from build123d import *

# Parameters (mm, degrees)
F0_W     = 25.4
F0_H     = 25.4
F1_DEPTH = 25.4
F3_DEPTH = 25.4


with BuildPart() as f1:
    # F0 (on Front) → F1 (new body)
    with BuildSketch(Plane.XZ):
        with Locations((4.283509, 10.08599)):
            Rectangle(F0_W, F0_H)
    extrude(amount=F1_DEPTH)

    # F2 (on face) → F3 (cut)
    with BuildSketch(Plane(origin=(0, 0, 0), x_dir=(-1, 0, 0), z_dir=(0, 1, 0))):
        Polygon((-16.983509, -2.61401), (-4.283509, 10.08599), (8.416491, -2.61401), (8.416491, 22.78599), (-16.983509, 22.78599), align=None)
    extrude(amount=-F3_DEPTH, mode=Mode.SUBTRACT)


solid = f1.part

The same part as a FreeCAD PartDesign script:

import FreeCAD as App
import Part
import Sketcher
from FreeCAD import Vector
Q = App.Units.Quantity

doc = App.newDocument("Part")
params = doc.addObject("Spreadsheet::Sheet", "Params")
for row, (alias, value) in enumerate([
    ("sketch1_width", "1 in"),
    ("pad1_length", "1 in"),
    ("sketch2_width", "1 in"),
    ("pocket1_length", "1 in"),
], start=1):
    params.set(f"A{row}", alias)
    params.set(f"B{row}", "=" + value)
    params.setAlias(f"B{row}", alias)

body = doc.addObject("PartDesign::Body", "Body")

# Sketch on XZ plane
sketch1 = body.newObject("Sketcher::SketchObject", "Sketch")
sketch1.AttachmentSupport = (doc.getObject("XZ_Plane"), [""])
sketch1.MapMode = "FlatFace"
sketch1.addGeometry([
    Part.LineSegment(Vector(-8, 23, 0), Vector(-8, -3, 0)),
    Part.LineSegment(Vector(-8, -3, 0), Vector(17, -3, 0)),
    Part.LineSegment(Vector(17, -3, 0), Vector(17, 23, 0)),
    Part.LineSegment(Vector(17, 23, 0), Vector(-8, 23, 0)),
], False)
sketch1.addConstraint([
    Sketcher.Constraint("Coincident", 0, 2, 1, 1),
    Sketcher.Constraint("Coincident", 1, 2, 2, 1),
    Sketcher.Constraint("Coincident", 2, 2, 3, 1),
    Sketcher.Constraint("Coincident", 3, 2, 0, 1),
    Sketcher.Constraint("Vertical", 0),
    Sketcher.Constraint("Horizontal", 1),
    Sketcher.Constraint("Vertical", 2),
    Sketcher.Constraint("Horizontal", 3),
    Sketcher.Constraint("Equal", 3, 0),
    Sketcher.Constraint("DistanceX", 1, 1, 1, 2, Q("1 in")),
    Sketcher.Constraint("DistanceX", 0, 2, -1, 1, Q("8.416491 mm")),
    Sketcher.Constraint("DistanceY", 0, 2, -1, 1, Q("2.61401 mm")),
])
sketch1.setExpression("Constraints[9]", "Params.sketch1_width")
pad1 = body.newObject("PartDesign::Pad", "Pad")
pad1.Profile = sketch1
pad1.setExpression("Length", "Params.pad1_length")

# Sketch on XZ plane
sketch2 = body.newObject("Sketcher::SketchObject", "Sketch001")
sketch2.AttachmentSupport = (doc.getObject("XZ_Plane"), [""])
sketch2.MapMode = "FlatFace"
sketch2.addGeometry([
    Part.LineSegment(Vector(17, -3, 0), Vector(4, 10, 0)),  # 0
    Part.LineSegment(Vector(4, 10, 0), Vector(-8, -3, 0)),  # 1
    Part.LineSegment(Vector(-8, -3, 0), Vector(-8, 23, 0)),  # 2
    Part.LineSegment(Vector(-8, 23, 0), Vector(17, 23, 0)),  # 3
    Part.LineSegment(Vector(17, 23, 0), Vector(17, -3, 0)),  # 4
], False)
sketch2.addConstraint([
    Sketcher.Constraint("Coincident", 0, 2, 1, 1),
    Sketcher.Constraint("Coincident", 1, 2, 2, 1),
    Sketcher.Constraint("Coincident", 2, 2, 3, 1),
    Sketcher.Constraint("Coincident", 3, 2, 4, 1),
    Sketcher.Constraint("Coincident", 4, 2, 0, 1),
    Sketcher.Constraint("Vertical", 2),
    Sketcher.Constraint("Horizontal", 3),
    Sketcher.Constraint("Vertical", 4),
    Sketcher.Constraint("Perpendicular", 0, 1),
    Sketcher.Constraint("Horizontal", 1, 2, 4, 2),
    Sketcher.Constraint("Equal", 3, 2),
    Sketcher.Constraint("Equal", 0, 1),
    Sketcher.Constraint("DistanceX", 3, 1, 3, 2, Q("1 in")),
    Sketcher.Constraint("DistanceX", -1, 1, 0, 2, Q("4.283509 mm")),
    Sketcher.Constraint("DistanceY", -1, 1, 0, 2, Q("10.08599 mm")),
])
sketch2.setExpression("Constraints[12]", "Params.sketch2_width")
pocket1 = body.newObject("PartDesign::Pocket", "Pocket")
pocket1.Profile = sketch2
pocket1.setExpression("Length", "Params.pocket1_length")
pocket1.Reversed = True

doc.recompute()
